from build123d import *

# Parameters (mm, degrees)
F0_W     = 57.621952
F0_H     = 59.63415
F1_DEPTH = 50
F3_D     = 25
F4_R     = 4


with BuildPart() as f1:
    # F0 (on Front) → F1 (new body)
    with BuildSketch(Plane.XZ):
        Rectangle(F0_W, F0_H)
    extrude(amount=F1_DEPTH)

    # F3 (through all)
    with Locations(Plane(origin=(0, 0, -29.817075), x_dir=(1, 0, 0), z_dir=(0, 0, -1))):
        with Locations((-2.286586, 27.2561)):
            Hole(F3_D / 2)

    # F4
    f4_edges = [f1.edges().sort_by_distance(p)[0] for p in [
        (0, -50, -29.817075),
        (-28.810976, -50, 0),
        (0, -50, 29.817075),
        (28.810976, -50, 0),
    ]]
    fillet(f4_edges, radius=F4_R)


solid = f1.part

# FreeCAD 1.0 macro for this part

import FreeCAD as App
import Part
import Sketcher
from FreeCAD import Vector


def edges_at(feature, points):
    """Names of the edges that pass closest to the given points."""
    edges = feature.Shape.Edges
    near = lambda p: min(range(len(edges)), key=lambda i: edges[i].distToShape(Part.Vertex(*p))[0])
    return sorted({f"Edge{near(p) + 1}" for p in points})


def add_polygon(sketch, points):
    """Adds a closed chain of lines whose ends are joined by coincident constraints."""
    first, n = sketch.GeometryCount, len(points)
    for a, b in zip(points, points[1:] + points[:1]):
        sketch.addGeometry(Part.LineSegment(App.Vector(*a, 0), App.Vector(*b, 0)), False)
    for i in range(n):
        sketch.addConstraint(Sketcher.Constraint("Coincident", first + i, 2, first + (i + 1) % n, 1))

doc = App.newDocument("Part")
params = doc.addObject("Spreadsheet::Sheet", "Params")
for row, (alias, value) in enumerate([
    ("pad1_length", "50 mm"),
    ("sketch2_diameter", "25 mm"),
    ("hole_diameter", "25 mm"),
    ("fillet_radius", "4 mm"),
], start=1):
    params.set(f"A{row}", alias)
    params.set(f"B{row}", "=" + value)
    params.setAlias(f"B{row}", alias)

body = doc.addObject("PartDesign::Body", "Body")

sketch1 = body.newObject("Sketcher::SketchObject", "Sketch")
sketch1.AttachmentSupport = (doc.getObject("XZ_Plane"), [""])
sketch1.MapMode = "FlatFace"
add_polygon(sketch1, [(-29, 30), (-29, -30), (29, -30), (29, 30)])
sketch1.addConstraint([
    Sketcher.Constraint("Vertical", 0),
    Sketcher.Constraint("Horizontal", 1),
    Sketcher.Constraint("Vertical", 2),
    Sketcher.Constraint("Horizontal", 3),
    Sketcher.Constraint("Symmetric", 0, 2, 2, 2, -1, 1),
    Sketcher.Constraint("DistanceY", 0, 2, 0, 1, 59.63415),
    Sketcher.Constraint("DistanceX", 1, 1, 1, 2, 57.621952),
])
pad1 = body.newObject("PartDesign::Pad", "Pad")
pad1.Profile = sketch1
pad1.setExpression("Length", "Params.pad1_length")

sketch2 = body.newObject("Sketcher::SketchObject", "Sketch001")
sketch2.AttachmentSupport = (doc.getObject("XY_Plane"), [""])
sketch2.MapMode = "FlatFace"
sketch2.AttachmentOffset = App.Placement(Vector(0, 0, -29.817075), App.Rotation())
sketch2.addGeometry(Part.Circle(Vector(-2, -27, 0), Vector(0, 0, 1), 12), False)
sketch2.addConstraint([
    Sketcher.Constraint("Diameter", 0, 25.0),
    Sketcher.Constraint("DistanceY", 0, 3, -1, 1, 27.2561),
    Sketcher.Constraint("DistanceX", 0, 3, -1, 1, 2.286586),
])
sketch2.setExpression("Constraints[0]", "Params.sketch2_diameter")
doc.recompute()
hole = body.newObject("PartDesign::Hole", "Hole")
hole.Profile = sketch2
hole.ThreadType = "None"
hole.setExpression("Diameter", "Params.hole_diameter")
hole.DepthType = "ThroughAll"
hole.Reversed = True
doc.recompute()

fillet = body.newObject("PartDesign::Fillet", "Fillet")
fillet.Base = (hole, edges_at(hole, [
    (0, -50, -29.817),
    (-28.811, -50, 0),
    (0, -50, 29.817),
    (28.811, -50, 0),
]))
fillet.setExpression("Radius", "Params.fillet_radius")

doc.recompute()
